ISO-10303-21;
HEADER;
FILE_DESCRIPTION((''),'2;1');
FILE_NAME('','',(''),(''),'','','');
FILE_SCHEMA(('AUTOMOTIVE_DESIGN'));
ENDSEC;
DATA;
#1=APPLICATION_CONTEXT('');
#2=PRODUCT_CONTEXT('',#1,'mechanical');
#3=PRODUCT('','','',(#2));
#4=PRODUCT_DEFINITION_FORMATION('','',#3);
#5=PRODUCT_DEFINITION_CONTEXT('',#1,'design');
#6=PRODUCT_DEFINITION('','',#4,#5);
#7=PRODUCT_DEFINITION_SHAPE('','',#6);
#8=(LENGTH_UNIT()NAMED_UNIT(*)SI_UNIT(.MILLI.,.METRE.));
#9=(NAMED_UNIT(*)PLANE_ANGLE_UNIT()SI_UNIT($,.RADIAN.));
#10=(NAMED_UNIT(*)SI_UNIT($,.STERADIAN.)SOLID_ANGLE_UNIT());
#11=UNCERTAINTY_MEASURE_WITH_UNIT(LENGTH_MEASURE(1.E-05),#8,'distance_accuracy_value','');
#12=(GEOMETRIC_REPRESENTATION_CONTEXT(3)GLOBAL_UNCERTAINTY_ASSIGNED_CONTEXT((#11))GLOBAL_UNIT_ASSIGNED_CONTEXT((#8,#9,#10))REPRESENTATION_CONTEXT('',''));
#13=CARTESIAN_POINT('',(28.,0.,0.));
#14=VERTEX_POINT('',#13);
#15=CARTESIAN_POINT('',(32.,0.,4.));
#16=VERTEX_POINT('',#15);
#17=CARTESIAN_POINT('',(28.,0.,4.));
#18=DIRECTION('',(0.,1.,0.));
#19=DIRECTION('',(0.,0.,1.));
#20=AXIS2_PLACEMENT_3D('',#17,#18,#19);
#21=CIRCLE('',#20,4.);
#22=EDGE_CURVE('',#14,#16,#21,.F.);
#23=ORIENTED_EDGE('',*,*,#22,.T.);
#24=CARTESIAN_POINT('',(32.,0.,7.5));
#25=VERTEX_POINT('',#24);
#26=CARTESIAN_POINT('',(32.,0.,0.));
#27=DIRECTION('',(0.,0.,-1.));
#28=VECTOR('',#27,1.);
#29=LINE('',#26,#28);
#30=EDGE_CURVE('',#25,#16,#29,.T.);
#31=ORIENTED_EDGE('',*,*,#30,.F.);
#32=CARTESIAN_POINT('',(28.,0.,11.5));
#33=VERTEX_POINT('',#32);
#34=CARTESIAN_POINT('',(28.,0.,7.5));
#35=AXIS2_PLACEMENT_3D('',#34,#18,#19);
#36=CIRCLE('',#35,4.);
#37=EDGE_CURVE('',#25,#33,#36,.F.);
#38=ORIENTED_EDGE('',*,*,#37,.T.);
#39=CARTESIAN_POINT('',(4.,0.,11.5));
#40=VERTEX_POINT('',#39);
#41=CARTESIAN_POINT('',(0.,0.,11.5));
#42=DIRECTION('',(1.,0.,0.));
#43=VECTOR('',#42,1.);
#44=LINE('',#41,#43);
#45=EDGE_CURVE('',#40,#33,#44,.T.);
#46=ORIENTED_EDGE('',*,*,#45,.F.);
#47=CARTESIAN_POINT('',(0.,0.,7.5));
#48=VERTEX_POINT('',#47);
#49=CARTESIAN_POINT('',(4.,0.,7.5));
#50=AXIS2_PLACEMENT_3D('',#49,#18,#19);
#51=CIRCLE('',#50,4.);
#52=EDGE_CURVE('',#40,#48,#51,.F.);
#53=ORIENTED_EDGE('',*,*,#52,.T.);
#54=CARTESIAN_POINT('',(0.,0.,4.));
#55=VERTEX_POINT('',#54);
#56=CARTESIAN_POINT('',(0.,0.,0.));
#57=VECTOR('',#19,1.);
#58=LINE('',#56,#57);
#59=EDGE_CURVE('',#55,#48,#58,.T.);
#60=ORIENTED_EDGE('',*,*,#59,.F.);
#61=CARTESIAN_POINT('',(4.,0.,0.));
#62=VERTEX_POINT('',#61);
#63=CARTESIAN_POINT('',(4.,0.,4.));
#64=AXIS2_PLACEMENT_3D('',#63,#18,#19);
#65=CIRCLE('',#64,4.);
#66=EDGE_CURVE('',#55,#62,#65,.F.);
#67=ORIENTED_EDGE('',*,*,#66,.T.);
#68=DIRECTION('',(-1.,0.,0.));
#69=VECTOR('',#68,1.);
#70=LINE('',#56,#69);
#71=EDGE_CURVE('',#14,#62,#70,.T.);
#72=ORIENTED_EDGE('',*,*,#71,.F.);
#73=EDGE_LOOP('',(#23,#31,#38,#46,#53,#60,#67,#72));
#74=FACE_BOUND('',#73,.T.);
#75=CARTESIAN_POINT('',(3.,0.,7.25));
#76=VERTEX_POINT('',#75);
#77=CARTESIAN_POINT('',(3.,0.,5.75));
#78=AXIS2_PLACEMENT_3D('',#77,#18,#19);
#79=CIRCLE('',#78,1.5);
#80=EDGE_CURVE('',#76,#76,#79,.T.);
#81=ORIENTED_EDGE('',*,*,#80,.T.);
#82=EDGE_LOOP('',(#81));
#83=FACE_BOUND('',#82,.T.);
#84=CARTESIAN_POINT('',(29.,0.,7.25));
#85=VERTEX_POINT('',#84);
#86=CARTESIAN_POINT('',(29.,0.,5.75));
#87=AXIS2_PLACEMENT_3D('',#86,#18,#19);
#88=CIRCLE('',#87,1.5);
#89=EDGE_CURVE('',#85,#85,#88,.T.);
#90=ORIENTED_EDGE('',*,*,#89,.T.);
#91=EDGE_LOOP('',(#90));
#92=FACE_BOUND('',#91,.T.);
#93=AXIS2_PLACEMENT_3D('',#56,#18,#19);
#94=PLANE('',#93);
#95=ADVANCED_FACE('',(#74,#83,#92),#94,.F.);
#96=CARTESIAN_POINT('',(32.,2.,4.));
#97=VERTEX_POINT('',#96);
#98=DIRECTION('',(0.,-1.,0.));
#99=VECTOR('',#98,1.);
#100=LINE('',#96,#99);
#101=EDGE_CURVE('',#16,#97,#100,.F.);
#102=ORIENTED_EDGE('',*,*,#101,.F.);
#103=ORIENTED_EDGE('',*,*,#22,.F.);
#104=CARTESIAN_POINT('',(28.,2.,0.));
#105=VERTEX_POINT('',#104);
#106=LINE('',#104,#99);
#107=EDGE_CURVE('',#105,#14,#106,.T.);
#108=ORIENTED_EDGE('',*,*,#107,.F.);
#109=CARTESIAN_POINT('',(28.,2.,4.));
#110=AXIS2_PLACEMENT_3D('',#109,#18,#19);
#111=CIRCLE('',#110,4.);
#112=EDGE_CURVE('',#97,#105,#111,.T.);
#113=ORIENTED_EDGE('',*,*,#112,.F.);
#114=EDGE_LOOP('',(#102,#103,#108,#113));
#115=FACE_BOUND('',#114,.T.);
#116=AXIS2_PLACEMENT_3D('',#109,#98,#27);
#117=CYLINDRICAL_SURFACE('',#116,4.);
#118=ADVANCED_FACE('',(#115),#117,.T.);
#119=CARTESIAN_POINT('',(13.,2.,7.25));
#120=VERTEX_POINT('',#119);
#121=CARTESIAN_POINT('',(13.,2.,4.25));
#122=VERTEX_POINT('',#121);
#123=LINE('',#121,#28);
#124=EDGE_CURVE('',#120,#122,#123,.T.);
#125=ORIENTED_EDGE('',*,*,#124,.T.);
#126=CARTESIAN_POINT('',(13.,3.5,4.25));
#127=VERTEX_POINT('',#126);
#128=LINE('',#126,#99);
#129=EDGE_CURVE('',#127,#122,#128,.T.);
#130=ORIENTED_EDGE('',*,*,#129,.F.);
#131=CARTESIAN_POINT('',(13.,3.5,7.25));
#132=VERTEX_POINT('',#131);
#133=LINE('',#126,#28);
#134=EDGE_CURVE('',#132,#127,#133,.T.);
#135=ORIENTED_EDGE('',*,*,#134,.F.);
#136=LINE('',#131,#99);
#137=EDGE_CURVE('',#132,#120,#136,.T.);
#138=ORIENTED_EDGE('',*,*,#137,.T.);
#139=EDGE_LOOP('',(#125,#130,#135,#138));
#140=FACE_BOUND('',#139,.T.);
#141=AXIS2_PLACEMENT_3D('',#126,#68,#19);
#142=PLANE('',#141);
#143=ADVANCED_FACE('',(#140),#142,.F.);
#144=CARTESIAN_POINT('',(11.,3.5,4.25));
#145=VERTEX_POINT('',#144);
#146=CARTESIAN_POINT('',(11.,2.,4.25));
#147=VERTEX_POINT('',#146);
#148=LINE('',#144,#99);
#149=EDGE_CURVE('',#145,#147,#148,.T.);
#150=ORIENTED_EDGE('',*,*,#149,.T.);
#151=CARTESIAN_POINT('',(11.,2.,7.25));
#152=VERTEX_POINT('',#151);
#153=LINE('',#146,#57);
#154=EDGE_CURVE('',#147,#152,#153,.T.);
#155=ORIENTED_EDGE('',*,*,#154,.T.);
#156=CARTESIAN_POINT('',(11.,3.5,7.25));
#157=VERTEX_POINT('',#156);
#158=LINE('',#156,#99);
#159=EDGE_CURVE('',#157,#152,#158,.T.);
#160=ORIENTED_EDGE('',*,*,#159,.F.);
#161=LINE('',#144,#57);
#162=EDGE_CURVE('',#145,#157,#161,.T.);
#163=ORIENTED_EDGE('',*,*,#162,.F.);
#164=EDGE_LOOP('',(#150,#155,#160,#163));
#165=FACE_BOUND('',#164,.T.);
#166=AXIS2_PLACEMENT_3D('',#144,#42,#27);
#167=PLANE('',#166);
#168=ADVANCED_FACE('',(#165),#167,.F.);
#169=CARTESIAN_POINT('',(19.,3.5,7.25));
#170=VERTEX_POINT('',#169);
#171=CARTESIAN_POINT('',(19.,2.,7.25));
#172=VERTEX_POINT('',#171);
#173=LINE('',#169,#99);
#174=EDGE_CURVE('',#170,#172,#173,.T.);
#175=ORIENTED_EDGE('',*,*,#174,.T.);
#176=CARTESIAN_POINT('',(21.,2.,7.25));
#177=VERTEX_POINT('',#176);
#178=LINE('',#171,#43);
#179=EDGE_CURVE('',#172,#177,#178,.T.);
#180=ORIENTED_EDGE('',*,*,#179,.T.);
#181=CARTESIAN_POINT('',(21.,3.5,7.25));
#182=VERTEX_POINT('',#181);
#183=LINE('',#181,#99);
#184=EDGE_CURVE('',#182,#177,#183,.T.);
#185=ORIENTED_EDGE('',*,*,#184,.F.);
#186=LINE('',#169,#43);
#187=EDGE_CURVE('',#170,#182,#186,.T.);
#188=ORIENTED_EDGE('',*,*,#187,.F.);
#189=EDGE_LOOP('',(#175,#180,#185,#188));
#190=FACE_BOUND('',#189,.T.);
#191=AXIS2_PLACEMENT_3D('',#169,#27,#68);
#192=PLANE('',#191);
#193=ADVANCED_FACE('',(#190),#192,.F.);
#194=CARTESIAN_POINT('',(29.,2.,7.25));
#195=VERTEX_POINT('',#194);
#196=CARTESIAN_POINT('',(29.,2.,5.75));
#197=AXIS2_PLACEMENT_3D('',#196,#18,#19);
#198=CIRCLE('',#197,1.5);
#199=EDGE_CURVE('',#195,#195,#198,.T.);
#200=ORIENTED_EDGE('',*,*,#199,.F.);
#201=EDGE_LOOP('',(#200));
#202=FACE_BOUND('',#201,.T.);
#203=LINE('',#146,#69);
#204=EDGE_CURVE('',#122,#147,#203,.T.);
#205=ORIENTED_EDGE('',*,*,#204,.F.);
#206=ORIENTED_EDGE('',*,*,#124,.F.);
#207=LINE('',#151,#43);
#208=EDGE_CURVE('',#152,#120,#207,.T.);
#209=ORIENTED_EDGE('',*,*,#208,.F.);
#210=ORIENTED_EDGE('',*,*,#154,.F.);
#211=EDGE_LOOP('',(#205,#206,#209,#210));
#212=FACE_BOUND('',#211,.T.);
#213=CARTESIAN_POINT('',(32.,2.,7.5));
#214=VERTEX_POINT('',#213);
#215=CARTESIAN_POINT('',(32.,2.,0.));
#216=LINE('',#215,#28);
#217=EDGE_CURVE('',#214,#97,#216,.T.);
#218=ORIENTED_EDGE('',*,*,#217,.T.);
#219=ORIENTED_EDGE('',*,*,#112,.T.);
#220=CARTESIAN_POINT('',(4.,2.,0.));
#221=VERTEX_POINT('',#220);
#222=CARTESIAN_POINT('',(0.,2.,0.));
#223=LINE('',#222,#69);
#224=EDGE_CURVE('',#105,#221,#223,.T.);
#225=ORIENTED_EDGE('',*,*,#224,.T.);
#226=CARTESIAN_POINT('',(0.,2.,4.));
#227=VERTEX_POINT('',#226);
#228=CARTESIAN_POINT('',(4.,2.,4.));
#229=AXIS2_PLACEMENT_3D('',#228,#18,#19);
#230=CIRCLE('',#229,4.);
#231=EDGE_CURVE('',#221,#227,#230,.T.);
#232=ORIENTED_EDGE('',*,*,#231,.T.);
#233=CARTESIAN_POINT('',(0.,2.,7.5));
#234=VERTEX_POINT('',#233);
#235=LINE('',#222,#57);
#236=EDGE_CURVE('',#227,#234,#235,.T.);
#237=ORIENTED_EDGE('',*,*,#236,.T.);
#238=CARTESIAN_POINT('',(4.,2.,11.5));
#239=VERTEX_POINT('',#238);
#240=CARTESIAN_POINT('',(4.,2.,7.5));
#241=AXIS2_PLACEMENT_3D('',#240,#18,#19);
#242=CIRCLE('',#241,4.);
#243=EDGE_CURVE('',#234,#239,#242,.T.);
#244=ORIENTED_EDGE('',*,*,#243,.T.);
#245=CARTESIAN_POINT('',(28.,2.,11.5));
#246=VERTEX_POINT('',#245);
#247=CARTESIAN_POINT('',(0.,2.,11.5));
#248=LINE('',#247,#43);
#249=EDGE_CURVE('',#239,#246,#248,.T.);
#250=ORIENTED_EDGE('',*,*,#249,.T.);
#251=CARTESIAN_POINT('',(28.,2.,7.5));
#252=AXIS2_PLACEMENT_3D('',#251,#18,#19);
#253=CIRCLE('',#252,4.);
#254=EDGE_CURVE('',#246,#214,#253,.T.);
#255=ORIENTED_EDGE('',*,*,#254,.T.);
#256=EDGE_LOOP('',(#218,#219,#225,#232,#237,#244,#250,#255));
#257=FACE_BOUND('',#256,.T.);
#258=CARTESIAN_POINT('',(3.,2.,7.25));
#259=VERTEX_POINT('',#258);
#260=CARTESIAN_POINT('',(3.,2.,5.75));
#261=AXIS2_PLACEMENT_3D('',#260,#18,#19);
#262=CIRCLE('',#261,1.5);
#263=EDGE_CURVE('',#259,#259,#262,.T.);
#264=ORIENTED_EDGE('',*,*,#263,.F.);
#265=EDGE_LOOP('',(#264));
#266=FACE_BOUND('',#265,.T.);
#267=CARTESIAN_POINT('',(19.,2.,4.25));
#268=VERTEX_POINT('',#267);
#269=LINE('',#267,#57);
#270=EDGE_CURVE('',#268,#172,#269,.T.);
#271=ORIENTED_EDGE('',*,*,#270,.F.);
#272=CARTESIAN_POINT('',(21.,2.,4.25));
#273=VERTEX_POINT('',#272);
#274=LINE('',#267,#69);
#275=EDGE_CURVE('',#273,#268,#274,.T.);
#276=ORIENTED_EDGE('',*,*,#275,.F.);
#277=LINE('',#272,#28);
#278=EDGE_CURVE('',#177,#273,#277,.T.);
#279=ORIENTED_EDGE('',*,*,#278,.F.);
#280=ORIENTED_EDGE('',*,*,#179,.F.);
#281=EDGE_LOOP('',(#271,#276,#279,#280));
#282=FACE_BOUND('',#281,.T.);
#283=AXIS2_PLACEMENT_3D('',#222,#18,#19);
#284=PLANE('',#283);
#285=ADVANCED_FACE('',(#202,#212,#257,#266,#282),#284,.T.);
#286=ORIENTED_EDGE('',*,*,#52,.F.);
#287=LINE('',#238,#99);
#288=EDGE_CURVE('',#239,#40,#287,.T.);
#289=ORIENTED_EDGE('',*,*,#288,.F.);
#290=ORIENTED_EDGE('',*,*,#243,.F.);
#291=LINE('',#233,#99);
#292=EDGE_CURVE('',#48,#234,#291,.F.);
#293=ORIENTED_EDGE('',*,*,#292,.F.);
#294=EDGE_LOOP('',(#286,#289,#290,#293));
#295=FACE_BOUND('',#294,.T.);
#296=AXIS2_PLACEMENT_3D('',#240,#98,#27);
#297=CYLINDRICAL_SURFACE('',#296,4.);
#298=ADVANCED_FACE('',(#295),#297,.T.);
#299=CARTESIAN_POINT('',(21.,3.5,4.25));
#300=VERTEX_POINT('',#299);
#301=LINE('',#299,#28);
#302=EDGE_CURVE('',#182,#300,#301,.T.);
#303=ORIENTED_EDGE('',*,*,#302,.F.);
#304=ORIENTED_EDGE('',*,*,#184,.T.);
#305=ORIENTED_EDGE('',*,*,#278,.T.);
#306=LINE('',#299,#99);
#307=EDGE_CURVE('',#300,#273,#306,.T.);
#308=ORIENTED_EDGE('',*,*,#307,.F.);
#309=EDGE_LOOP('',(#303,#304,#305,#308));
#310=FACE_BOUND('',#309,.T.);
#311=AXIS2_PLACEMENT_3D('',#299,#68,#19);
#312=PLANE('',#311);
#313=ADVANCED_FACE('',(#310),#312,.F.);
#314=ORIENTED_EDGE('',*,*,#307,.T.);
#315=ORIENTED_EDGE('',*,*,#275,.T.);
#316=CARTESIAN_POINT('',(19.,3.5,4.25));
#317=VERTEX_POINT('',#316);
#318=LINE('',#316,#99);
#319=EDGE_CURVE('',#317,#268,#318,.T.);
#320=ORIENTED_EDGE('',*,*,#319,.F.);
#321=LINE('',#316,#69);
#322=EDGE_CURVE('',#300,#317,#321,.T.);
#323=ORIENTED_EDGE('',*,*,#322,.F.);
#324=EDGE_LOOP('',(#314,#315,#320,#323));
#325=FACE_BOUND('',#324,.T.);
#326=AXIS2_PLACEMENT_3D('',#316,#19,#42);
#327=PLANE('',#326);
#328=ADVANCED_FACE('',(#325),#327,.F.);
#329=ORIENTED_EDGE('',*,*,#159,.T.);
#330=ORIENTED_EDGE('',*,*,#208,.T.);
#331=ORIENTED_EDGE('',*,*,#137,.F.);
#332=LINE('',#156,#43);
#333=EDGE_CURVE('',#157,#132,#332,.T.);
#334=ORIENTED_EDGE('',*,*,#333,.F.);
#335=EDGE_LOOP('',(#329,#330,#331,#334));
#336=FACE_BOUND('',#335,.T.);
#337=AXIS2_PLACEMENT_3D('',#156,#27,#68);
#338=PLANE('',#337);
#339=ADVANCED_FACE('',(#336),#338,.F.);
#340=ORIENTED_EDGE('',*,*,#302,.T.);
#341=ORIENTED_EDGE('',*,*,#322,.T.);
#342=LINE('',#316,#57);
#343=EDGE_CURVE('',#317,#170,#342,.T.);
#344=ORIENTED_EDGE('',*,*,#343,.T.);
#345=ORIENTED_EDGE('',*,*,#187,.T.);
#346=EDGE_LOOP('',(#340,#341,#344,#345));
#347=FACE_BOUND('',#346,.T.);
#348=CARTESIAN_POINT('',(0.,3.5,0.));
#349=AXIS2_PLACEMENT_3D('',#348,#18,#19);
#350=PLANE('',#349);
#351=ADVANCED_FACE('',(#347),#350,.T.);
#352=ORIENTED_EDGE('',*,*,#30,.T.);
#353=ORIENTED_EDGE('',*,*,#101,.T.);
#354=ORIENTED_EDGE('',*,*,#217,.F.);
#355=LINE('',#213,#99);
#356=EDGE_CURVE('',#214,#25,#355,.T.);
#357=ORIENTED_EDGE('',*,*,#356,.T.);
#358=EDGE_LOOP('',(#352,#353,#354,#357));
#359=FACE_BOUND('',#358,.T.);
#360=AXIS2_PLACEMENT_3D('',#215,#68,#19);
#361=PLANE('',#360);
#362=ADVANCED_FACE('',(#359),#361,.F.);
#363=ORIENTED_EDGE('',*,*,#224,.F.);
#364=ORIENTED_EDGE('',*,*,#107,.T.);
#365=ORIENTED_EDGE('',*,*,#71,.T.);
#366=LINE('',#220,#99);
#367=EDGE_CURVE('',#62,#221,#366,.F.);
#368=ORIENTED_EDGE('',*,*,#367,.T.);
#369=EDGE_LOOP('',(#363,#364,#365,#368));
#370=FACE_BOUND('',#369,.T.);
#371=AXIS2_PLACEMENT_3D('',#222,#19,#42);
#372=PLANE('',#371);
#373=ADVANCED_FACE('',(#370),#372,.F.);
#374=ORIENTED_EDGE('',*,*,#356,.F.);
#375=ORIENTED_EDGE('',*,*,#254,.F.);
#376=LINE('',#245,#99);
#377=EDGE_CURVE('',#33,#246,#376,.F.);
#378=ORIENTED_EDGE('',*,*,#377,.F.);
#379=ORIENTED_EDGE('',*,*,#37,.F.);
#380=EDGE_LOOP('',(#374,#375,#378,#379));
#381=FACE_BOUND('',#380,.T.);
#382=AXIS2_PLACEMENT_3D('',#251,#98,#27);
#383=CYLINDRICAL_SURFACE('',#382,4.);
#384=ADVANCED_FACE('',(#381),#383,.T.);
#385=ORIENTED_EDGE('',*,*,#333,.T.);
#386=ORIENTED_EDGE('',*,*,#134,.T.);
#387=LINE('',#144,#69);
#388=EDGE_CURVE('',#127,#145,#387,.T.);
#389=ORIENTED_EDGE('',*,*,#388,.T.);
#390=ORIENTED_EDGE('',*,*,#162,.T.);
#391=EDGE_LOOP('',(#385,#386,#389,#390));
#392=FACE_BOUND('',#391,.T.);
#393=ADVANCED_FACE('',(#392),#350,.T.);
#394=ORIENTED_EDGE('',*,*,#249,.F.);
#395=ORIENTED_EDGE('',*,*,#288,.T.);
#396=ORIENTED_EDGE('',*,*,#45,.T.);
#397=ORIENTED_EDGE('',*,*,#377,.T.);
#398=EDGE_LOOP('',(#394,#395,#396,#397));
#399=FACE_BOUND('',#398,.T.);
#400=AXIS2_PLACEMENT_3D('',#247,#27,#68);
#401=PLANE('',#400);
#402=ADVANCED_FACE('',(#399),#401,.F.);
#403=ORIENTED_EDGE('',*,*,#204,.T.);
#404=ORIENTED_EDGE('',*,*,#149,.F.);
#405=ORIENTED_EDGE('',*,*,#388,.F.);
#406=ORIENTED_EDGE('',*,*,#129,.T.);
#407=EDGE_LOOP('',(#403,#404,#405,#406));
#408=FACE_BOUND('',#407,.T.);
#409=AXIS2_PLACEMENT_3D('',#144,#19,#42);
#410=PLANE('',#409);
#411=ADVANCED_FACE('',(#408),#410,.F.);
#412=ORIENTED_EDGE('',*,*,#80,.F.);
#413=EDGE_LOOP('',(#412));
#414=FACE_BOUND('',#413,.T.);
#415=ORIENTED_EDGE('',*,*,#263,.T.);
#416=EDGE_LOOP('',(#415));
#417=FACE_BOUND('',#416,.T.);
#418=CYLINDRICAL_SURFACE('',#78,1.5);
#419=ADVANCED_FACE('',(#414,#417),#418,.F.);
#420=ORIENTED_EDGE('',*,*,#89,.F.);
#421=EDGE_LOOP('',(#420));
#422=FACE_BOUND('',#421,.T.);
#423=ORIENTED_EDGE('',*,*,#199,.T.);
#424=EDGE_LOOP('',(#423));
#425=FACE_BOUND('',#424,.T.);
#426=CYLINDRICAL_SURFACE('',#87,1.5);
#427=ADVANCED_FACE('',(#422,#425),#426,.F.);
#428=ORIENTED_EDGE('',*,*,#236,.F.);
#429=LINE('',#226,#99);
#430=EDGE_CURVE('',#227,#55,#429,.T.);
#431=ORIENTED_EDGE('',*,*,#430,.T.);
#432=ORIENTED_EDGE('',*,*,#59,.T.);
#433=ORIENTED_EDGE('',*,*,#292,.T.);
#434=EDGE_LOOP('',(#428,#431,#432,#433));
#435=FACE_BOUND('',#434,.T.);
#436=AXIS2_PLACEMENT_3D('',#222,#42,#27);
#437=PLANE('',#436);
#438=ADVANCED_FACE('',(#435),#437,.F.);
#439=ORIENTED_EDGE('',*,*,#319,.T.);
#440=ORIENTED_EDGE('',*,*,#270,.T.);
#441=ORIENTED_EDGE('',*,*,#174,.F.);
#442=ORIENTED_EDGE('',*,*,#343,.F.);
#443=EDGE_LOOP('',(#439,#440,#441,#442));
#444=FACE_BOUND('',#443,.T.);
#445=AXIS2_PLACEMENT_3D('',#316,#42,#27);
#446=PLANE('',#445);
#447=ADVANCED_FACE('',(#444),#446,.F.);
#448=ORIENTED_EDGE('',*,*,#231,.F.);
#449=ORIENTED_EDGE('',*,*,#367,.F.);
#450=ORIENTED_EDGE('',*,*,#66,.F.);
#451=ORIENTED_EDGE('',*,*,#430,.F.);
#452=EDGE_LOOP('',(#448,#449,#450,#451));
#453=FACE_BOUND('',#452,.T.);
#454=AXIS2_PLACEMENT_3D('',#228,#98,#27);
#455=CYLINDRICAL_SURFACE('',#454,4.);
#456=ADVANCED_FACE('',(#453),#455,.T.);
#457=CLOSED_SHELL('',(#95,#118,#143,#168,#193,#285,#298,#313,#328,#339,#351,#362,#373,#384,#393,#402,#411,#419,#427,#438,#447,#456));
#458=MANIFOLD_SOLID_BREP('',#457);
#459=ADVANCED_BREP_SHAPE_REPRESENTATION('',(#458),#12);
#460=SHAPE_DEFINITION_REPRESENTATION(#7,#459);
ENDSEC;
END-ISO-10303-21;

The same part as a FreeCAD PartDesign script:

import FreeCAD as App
import Part
import Sketcher
from FreeCAD import Vector


def edges_at(feature, points):
    """Names of the edges that pass closest to the given points."""
    edges = feature.Shape.Edges
    near = lambda p: min(range(len(edges)), key=lambda i: edges[i].distToShape(Part.Vertex(*p))[0])
    return sorted({f"Edge{near(p) + 1}" for p in points})

doc = App.newDocument("Part")
body = doc.addObject("PartDesign::Body", "Body")

# Sketch on XZ plane
sketch1 = body.newObject("Sketcher::SketchObject", "Sketch")
sketch1.AttachmentSupport = (doc.getObject("XZ_Plane"), [""])
sketch1.MapMode = "FlatFace"
sketch1.addGeometry(Part.LineSegment(Vector(0, 0, 0), Vector(0, 12, 0)), False)
sketch1.addGeometry(Part.LineSegment(Vector(0, 12, 0), Vector(32, 12, 0)), False)
sketch1.addGeometry(Part.LineSegment(Vector(32, 12, 0), Vector(32, 0, 0)), False)
sketch1.addGeometry(Part.LineSegment(Vector(32, 0, 0), Vector(0, 0, 0)), False)
sketch1.addConstraint(Sketcher.Constraint("Coincident", 0, 2, 1, 1))
sketch1.addConstraint(Sketcher.Constraint("Coincident", 1, 2, 2, 1))
sketch1.addConstraint(Sketcher.Constraint("Coincident", 2, 2, 3, 1))
sketch1.addConstraint(Sketcher.Constraint("Coincident", 3, 2, 0, 1))
sketch1.addConstraint(Sketcher.Constraint("Vertical", 0))
sketch1.addConstraint(Sketcher.Constraint("Horizontal", 1))
sketch1.addConstraint(Sketcher.Constraint("Vertical", 2))
sketch1.addConstraint(Sketcher.Constraint("Horizontal", 3))
sketch1.addConstraint(Sketcher.Constraint("Coincident", 3, 2, -1, 1))
sketch1.addConstraint(Sketcher.Constraint("DistanceX", 1, 1, 1, 2, 32.0))
sketch1.addConstraint(Sketcher.Constraint("DistanceY", 0, 1, 0, 2, 11.5))
pad1 = body.newObject("PartDesign::Pad", "Pad")
pad1.Profile = sketch1
pad1.Length = 2
pad1.Reversed = True

# Sketch on XZ plane
sketch2 = body.newObject("Sketcher::SketchObject", "Sketch001")
sketch2.AttachmentSupport = (doc.getObject("XZ_Plane"), [""])
sketch2.MapMode = "FlatFace"
sketch2.AttachmentOffset = App.Placement(Vector(0, 0, -2), App.Rotation())
sketch2.addGeometry(Part.Circle(Vector(3, 5.8, 0), Vector(0, 0, 1), 1.5), False)
sketch2.addGeometry(Part.Circle(Vector(29, 5.8, 0), Vector(0, 0, 1), 1.5), False)
sketch2.addConstraint(Sketcher.Constraint("Equal", 0, 1))
sketch2.addConstraint(Sketcher.Constraint("Horizontal", 0, 3, 1, 3))
sketch2.addConstraint(Sketcher.Constraint("Diameter", 0, 3.0))
sketch2.addConstraint(Sketcher.Constraint("DistanceX", -1, 1, 0, 3, 3.0))
sketch2.addConstraint(Sketcher.Constraint("DistanceX", -1, 1, 1, 3, 29.0))
sketch2.addConstraint(Sketcher.Constraint("DistanceY", -1, 1, 0, 3, 5.75))
pocket1 = body.newObject("PartDesign::Pocket", "Pocket")
pocket1.Profile = sketch2
pocket1.Type = "ThroughAll"
pocket1.Reversed = True
doc.recompute()

fillet = body.newObject("PartDesign::Fillet", "Fillet")
fillet.Base = (pocket1, edges_at(pocket1, [
    (0, 1, 0),
    (32, 1, 0),
    (32, 1, 11.5),
    (0, 1, 11.5),
]))
fillet.Radius = 4

# Sketch on XZ plane
sketch3 = body.newObject("Sketcher::SketchObject", "Sketch002")
sketch3.AttachmentSupport = (doc.getObject("XZ_Plane"), [""])
sketch3.MapMode = "FlatFace"
sketch3.AttachmentOffset = App.Placement(Vector(0, 0, -2), App.Rotation())
sketch3.addGeometry(Part.LineSegment(Vector(11, 4.2, 0), Vector(11, 7.2, 0)), False)
sketch3.addGeometry(Part.LineSegment(Vector(11, 7.2, 0), Vector(13, 7.2, 0)), False)
sketch3.addGeometry(Part.LineSegment(Vector(13, 7.2, 0), Vector(13, 4.2, 0)), False)
sketch3.addGeometry(Part.LineSegment(Vector(13, 4.2, 0), Vector(11, 4.2, 0)), False)
sketch3.addGeometry(Part.LineSegment(Vector(19, 4.2, 0), Vector(19, 7.2, 0)), False)
sketch3.addGeometry(Part.LineSegment(Vector(19, 7.2, 0), Vector(21, 7.2, 0)), False)
sketch3.addGeometry(Part.LineSegment(Vector(21, 7.2, 0), Vector(21, 4.2, 0)), False)
sketch3.addGeometry(Part.LineSegment(Vector(21, 4.2, 0), Vector(19, 4.2, 0)), False)
sketch3.addConstraint(Sketcher.Constraint("Coincident", 0, 2, 1, 1))
sketch3.addConstraint(Sketcher.Constraint("Coincident", 1, 2, 2, 1))
sketch3.addConstraint(Sketcher.Constraint("Coincident", 2, 2, 3, 1))
sketch3.addConstraint(Sketcher.Constraint("Coincident", 3, 2, 0, 1))
sketch3.addConstraint(Sketcher.Constraint("Coincident", 4, 2, 5, 1))
sketch3.addConstraint(Sketcher.Constraint("Coincident", 5, 2, 6, 1))
sketch3.addConstraint(Sketcher.Constraint("Coincident", 6, 2, 7, 1))
sketch3.addConstraint(Sketcher.Constraint("Coincident", 7, 2, 4, 1))
sketch3.addConstraint(Sketcher.Constraint("Vertical", 0))
sketch3.addConstraint(Sketcher.Constraint("Horizontal", 1))
sketch3.addConstraint(Sketcher.Constraint("Vertical", 2))
sketch3.addConstraint(Sketcher.Constraint("Horizontal", 3))
sketch3.addConstraint(Sketcher.Constraint("Vertical", 4))
sketch3.addConstraint(Sketcher.Constraint("Horizontal", 5))
sketch3.addConstraint(Sketcher.Constraint("Vertical", 6))
sketch3.addConstraint(Sketcher.Constraint("Horizontal", 7))
sketch3.addConstraint(Sketcher.Constraint("Horizontal", 1, 2, 4, 2))
sketch3.addConstraint(Sketcher.Constraint("Horizontal", 3, 2, 6, 2))
sketch3.addConstraint(Sketcher.Constraint("Equal", 3, 5))
sketch3.addConstraint(Sketcher.Constraint("DistanceX", 1, 1, 1, 2, 2.0))
sketch3.addConstraint(Sketcher.Constraint("DistanceY", 0, 1, 0, 2, 3.0))
sketch3.addConstraint(Sketcher.Constraint("DistanceX", -1, 1, 0, 2, 11.0))
sketch3.addConstraint(Sketcher.Constraint("DistanceX", -1, 1, 4, 2, 19.0))
sketch3.addConstraint(Sketcher.Constraint("DistanceY", -1, 1, 0, 2, 7.25))
pad2 = body.newObject("PartDesign::Pad", "Pad001")
pad2.Profile = sketch3
pad2.Length = 1.5
pad2.Reversed = True

doc.recompute()
